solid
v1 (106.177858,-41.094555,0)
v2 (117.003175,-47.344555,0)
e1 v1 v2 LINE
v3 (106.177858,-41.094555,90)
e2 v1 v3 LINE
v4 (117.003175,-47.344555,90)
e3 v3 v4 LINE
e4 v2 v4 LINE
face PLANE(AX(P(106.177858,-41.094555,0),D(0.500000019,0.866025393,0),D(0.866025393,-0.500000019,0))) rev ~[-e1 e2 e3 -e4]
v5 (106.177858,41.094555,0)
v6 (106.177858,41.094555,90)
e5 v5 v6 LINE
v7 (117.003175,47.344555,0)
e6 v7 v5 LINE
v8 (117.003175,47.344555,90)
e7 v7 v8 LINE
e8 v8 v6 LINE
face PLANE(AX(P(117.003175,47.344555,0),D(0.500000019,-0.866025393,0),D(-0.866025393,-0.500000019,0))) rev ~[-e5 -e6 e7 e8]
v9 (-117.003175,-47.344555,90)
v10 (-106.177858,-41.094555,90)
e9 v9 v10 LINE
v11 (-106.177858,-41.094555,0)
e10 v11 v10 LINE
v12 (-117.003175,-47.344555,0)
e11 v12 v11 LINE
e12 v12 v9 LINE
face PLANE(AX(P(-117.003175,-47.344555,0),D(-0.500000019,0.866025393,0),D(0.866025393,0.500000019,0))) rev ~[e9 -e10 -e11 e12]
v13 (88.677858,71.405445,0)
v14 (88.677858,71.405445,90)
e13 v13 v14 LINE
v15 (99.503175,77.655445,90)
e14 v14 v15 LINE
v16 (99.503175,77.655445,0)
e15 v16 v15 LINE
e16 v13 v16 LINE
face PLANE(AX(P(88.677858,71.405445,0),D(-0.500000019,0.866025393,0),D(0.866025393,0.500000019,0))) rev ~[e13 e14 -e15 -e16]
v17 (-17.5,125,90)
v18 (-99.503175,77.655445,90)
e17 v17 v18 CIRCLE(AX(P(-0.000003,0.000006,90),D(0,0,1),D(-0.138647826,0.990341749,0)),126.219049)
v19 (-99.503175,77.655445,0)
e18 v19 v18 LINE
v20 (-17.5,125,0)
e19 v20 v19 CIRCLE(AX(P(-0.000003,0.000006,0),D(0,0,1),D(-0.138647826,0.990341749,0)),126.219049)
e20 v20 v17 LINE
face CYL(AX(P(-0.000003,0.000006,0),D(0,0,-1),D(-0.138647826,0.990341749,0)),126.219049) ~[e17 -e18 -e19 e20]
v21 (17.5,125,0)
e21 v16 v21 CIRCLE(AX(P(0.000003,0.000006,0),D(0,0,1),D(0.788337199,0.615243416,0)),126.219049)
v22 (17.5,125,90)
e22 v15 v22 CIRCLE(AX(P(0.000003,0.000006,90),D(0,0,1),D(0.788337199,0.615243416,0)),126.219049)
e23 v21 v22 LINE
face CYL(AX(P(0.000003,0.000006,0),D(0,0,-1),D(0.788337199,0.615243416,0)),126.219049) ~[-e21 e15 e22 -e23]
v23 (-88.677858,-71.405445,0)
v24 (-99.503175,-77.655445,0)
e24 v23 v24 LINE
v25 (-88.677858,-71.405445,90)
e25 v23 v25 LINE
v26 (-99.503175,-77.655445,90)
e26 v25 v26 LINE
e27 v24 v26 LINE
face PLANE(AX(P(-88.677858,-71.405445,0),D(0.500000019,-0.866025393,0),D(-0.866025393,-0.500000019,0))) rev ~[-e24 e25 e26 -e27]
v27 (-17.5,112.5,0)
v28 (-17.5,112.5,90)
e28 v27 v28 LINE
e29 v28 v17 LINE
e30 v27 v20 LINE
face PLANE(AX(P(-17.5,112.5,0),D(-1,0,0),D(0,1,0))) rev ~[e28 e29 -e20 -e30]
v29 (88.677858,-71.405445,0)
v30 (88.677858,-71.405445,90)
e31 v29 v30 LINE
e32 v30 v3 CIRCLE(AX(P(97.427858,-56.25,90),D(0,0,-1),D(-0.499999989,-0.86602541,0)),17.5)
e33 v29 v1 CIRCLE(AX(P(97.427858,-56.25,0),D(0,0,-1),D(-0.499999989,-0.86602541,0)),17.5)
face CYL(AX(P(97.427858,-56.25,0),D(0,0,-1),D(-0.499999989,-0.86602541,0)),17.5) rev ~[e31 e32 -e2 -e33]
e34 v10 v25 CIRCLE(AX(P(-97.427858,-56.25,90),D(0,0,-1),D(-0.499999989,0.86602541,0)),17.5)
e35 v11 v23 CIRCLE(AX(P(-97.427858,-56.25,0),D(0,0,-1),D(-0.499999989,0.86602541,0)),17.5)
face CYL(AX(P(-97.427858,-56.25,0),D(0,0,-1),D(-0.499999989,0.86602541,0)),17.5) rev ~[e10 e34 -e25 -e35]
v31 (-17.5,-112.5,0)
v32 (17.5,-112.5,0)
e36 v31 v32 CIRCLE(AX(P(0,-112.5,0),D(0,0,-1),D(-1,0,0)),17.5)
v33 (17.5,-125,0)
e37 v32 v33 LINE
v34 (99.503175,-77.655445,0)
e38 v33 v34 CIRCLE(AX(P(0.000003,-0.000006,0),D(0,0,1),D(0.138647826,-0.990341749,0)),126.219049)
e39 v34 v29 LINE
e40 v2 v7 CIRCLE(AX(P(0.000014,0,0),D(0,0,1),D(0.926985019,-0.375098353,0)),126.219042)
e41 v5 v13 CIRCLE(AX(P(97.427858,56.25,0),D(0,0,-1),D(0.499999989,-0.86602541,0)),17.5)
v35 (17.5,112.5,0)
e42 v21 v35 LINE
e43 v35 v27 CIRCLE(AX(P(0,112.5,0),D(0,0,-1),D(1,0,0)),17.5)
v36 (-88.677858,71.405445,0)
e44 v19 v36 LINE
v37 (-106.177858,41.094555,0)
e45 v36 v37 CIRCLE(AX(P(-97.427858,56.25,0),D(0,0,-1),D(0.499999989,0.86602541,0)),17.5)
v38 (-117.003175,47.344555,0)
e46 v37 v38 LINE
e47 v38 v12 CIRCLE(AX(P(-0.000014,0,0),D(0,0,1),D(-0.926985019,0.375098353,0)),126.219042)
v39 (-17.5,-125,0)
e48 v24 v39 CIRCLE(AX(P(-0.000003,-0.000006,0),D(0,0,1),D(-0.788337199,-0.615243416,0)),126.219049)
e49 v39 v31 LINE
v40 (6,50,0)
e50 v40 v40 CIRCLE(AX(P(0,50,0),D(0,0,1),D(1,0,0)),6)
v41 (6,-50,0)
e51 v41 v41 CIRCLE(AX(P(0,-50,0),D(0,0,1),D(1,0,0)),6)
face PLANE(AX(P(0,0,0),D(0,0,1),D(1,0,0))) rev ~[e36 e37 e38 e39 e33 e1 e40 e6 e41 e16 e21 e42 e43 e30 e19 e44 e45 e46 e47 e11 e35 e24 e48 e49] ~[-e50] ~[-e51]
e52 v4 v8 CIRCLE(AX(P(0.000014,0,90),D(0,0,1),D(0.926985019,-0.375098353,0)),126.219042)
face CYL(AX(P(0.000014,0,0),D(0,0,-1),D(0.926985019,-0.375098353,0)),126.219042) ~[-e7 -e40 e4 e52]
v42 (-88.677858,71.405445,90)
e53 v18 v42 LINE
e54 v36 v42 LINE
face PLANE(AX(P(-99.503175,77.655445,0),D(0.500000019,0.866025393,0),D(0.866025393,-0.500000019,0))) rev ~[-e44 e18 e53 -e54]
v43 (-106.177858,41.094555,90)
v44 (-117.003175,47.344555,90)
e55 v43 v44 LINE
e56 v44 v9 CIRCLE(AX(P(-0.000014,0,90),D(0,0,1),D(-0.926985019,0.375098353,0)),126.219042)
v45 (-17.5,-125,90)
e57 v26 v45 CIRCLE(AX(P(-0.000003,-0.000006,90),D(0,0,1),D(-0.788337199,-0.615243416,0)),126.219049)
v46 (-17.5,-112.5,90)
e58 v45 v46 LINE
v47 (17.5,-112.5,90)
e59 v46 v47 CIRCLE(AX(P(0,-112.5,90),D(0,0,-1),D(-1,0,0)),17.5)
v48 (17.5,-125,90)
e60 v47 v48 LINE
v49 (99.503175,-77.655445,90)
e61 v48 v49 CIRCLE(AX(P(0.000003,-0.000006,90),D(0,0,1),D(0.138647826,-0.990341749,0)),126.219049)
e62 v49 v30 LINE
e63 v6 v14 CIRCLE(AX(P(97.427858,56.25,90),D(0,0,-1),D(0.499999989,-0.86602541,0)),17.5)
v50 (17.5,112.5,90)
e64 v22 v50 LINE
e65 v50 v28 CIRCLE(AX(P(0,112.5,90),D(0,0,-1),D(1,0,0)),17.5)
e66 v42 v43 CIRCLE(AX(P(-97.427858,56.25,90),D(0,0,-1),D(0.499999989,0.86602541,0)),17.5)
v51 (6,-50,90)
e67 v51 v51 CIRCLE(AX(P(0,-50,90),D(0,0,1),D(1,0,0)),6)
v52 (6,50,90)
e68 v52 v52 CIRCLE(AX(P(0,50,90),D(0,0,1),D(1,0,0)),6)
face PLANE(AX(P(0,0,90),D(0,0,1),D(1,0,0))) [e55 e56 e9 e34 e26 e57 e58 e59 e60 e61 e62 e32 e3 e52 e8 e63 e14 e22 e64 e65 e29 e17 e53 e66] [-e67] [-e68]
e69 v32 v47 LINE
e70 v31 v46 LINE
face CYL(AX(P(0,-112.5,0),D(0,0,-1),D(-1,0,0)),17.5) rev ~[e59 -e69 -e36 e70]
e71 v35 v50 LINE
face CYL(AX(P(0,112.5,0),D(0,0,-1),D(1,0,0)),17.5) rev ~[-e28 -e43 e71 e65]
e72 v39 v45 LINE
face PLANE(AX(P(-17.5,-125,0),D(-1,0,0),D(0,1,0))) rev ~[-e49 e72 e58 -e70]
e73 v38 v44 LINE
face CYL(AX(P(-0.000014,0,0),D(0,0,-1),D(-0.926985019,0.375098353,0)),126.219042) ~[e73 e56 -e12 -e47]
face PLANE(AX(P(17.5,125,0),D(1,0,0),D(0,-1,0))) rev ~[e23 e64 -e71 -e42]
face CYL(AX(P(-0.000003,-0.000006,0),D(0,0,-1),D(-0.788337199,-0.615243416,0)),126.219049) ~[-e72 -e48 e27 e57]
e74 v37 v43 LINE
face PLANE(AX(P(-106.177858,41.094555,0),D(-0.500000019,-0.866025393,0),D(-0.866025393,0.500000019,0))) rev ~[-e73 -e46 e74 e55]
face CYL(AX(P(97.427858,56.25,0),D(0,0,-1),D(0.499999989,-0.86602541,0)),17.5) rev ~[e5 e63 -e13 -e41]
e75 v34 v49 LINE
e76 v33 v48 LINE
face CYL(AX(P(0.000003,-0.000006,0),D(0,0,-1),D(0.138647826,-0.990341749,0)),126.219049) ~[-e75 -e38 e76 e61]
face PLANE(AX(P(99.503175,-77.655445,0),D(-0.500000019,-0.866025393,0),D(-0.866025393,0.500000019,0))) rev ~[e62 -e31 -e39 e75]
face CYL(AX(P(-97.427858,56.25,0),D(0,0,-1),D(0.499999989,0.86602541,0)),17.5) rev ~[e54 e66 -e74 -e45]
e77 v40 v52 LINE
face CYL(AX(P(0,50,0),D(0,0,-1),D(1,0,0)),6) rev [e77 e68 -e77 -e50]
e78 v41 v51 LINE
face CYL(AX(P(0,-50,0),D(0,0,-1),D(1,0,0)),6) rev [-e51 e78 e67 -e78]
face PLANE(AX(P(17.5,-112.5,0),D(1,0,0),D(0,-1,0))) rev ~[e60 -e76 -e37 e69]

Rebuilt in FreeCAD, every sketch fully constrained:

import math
import FreeCAD as App
import Part
import Sketcher
Q = App.Units.Quantity

doc = App.newDocument("Part")
body = doc.addObject("PartDesign::Body", "Body")

# Sketch on XY plane
sketch1 = body.newObject("Sketcher::SketchObject", "Sketch")
sketch1.AttachmentSupport = (doc.getObject("XY_Plane"), [""])
sketch1.MapMode = "FlatFace"
sketch1.addGeometry([
    Part.LineSegment(App.Vector(17.5, 125, 0), App.Vector(17.5, 112.5, 0)),  # 0
    Part.ArcOfCircle(Part.Circle(App.Vector(0, 112.5, 0), App.Vector(0, 0, 1), 17.5), math.radians(180), math.radians(360)),  # 1
    Part.LineSegment(App.Vector(-17.5, 112.5, 0), App.Vector(-17.5, 125, 0)),  # 2
    Part.ArcOfCircle(Part.Circle(App.Vector(-0.000003, 0.000006, 0), App.Vector(0, 0, 1), 126.219049), math.radians(97.969609), math.radians(142.030391)),  # 3
    Part.LineSegment(App.Vector(-99.503175, 77.655445, 0), App.Vector(-88.677858, 71.405445, 0)),  # 4
    Part.ArcOfCircle(Part.Circle(App.Vector(-97.427858, 56.25, 0), App.Vector(0, 0, 1), 17.5), math.radians(-119.999999), math.radians(60.000001)),  # 5
    Part.LineSegment(App.Vector(-106.177858, 41.094555, 0), App.Vector(-117.003175, 47.344555, 0)),  # 6
    Part.ArcOfCircle(Part.Circle(App.Vector(-0.000014, 0, 0), App.Vector(0, 0, 1), 126.219042), math.radians(157.969608), math.radians(202.030392)),  # 7
    Part.LineSegment(App.Vector(-117.003175, -47.344555, 0), App.Vector(-106.177858, -41.094555, 0)),  # 8
    Part.ArcOfCircle(Part.Circle(App.Vector(-97.427858, -56.25, 0), App.Vector(0, 0, 1), 17.5), math.radians(-60.000001), math.radians(119.999999)),  # 9
    Part.LineSegment(App.Vector(-88.677858, -71.405445, 0), App.Vector(-99.503175, -77.655445, 0)),  # 10
    Part.ArcOfCircle(Part.Circle(App.Vector(-0.000003, -0.000006, 0), App.Vector(0, 0, 1), 126.219049), math.radians(-142.030391), math.radians(-97.969609)),  # 11
    Part.LineSegment(App.Vector(-17.5, -125, 0), App.Vector(-17.5, -112.5, 0)),  # 12
    Part.ArcOfCircle(Part.Circle(App.Vector(0, -112.5, 0), App.Vector(0, 0, 1), 17.5), math.radians(0), math.radians(180)),  # 13
    Part.LineSegment(App.Vector(17.5, -112.5, 0), App.Vector(17.5, -125, 0)),  # 14
    Part.ArcOfCircle(Part.Circle(App.Vector(0.000003, -0.000006, 0), App.Vector(0, 0, 1), 126.219049), math.radians(-82.030391), math.radians(-37.969609)),  # 15
    Part.LineSegment(App.Vector(99.503175, -77.655445, 0), App.Vector(88.677858, -71.405445, 0)),  # 16
    Part.ArcOfCircle(Part.Circle(App.Vector(97.427858, -56.25, 0), App.Vector(0, 0, 1), 17.5), math.radians(60.000001), math.radians(240.000001)),  # 17
    Part.LineSegment(App.Vector(106.177858, -41.094555, 0), App.Vector(117.003175, -47.344555, 0)),  # 18
    Part.ArcOfCircle(Part.Circle(App.Vector(0.000014, 0, 0), App.Vector(0, 0, 1), 126.219042), math.radians(-22.030392), math.radians(22.030392)),  # 19
    Part.LineSegment(App.Vector(117.003175, 47.344555, 0), App.Vector(106.177858, 41.094555, 0)),  # 20
    Part.ArcOfCircle(Part.Circle(App.Vector(97.427858, 56.25, 0), App.Vector(0, 0, 1), 17.5), math.radians(119.999999), math.radians(299.999999)),  # 21
    Part.LineSegment(App.Vector(88.677858, 71.405445, 0), App.Vector(99.503175, 77.655445, 0)),  # 22
    Part.ArcOfCircle(Part.Circle(App.Vector(0.000003, 0.000006, 0), App.Vector(0, 0, 1), 126.219049), math.radians(37.969609), math.radians(82.030391)),  # 23
    Part.Circle(App.Vector(0, -50, 0), App.Vector(0, 0, 1), 6),  # 24
    Part.Circle(App.Vector(0, 50, 0), App.Vector(0, 0, 1), 6),  # 25
], False)
sketch1.addConstraint([
    Sketcher.Constraint("Tangent", 0, 2, 1, 2),
    Sketcher.Constraint("Tangent", 1, 1, 2, 1),
    Sketcher.Constraint("Coincident", 2, 2, 3, 1),
    Sketcher.Constraint("Coincident", 3, 2, 4, 1),
    Sketcher.Constraint("Tangent", 4, 2, 5, 2),
    Sketcher.Constraint("Tangent", 5, 1, 6, 1),
    Sketcher.Constraint("Coincident", 6, 2, 7, 1),
    Sketcher.Constraint("Coincident", 7, 2, 8, 1),
    Sketcher.Constraint("Tangent", 8, 2, 9, 2),
    Sketcher.Constraint("Tangent", 9, 1, 10, 1),
    Sketcher.Constraint("Coincident", 10, 2, 11, 1),
    Sketcher.Constraint("Coincident", 11, 2, 12, 1),
    Sketcher.Constraint("Tangent", 12, 2, 13, 2),
    Sketcher.Constraint("Tangent", 13, 1, 14, 1),
    Sketcher.Constraint("Coincident", 14, 2, 15, 1),
    Sketcher.Constraint("Coincident", 15, 2, 16, 1),
    Sketcher.Constraint("Tangent", 16, 2, 17, 2),
    Sketcher.Constraint("Tangent", 17, 1, 18, 1),
    Sketcher.Constraint("Coincident", 18, 2, 19, 1),
    Sketcher.Constraint("Coincident", 19, 2, 20, 1),
    Sketcher.Constraint("Tangent", 20, 2, 21, 2),
    Sketcher.Constraint("Tangent", 21, 1, 22, 1),
    Sketcher.Constraint("Coincident", 22, 2, 23, 1),
    Sketcher.Constraint("Coincident", 23, 2, 0, 1),
    Sketcher.Constraint("Vertical", 0),
    Sketcher.Constraint("Vertical", 2),
    Sketcher.Constraint("Vertical", 12),
    Sketcher.Constraint("Vertical", 14),
    Sketcher.Constraint("Coincident", 3, 3, -1, 1),
    Sketcher.Constraint("Coincident", 11, 3, -1, 1),
    Sketcher.Constraint("Coincident", 15, 3, -1, 1),
    Sketcher.Constraint("Coincident", 23, 3, -1, 1),
    Sketcher.Constraint("Equal", 1, 5),
    Sketcher.Constraint("Equal", 5, 9),
    Sketcher.Constraint("Equal", 3, 11),
    Sketcher.Constraint("Equal", 9, 13),
    Sketcher.Constraint("Equal", 11, 15),
    Sketcher.Constraint("Equal", 13, 17),
    Sketcher.Constraint("Equal", 7, 19),
    Sketcher.Constraint("Equal", 17, 21),
    Sketcher.Constraint("Equal", 15, 23),
    Sketcher.Constraint("Equal", 24, 25),
    Sketcher.Constraint("Symmetric", 1, 3, 13, 3, -1, 1),
    Sketcher.Constraint("Symmetric", 5, 3, 17, 3, -1, 1),
    Sketcher.Constraint("Symmetric", 7, 3, 19, 3, -1, 1),
    Sketcher.Constraint("Symmetric", 9, 3, 21, 3, -1, 1),
    Sketcher.Constraint("Symmetric", 24, 3, 25, 3, -1, 1),
    Sketcher.Constraint("Symmetric", 9, 3, 17, 3, -2),
    Sketcher.Constraint("Symmetric", 7, 2, 18, 2, -2),
    Sketcher.Constraint("PointOnObject", 1, 3, -2),
    Sketcher.Constraint("PointOnObject", 24, 3, -2),
    Sketcher.Constraint("Parallel", 4, 6),
    Sketcher.Constraint("Parallel", 8, 10),
    Sketcher.Constraint("Parallel", 6, 16),
    Sketcher.Constraint("Parallel", 16, 18),
    Sketcher.Constraint("Parallel", 10, 20),
    Sketcher.Constraint("Parallel", 20, 22),
    Sketcher.Constraint("Equal", 4, 6),
    Sketcher.Constraint("Diameter", 24, 12.0),
    Sketcher.Constraint("Radius", 1, 17.5),
    Sketcher.Constraint("Angle", 4, Q("-30.000001 deg")),
    Sketcher.Constraint("DistanceY", 0, 2, 0, 1, 12.5),
    Sketcher.Constraint("DistanceY", 24, 3, -1, 1, 50.0),
    Sketcher.Constraint("DistanceY", -1, 1, 2, 2, 125.0),
    Sketcher.Constraint("Distance", 4, 12.5),
    Sketcher.Constraint("DistanceY", 9, 3, 5, 3, 112.5),
    Sketcher.Constraint("Radius", 7, 126.219042),
])
pad1 = body.newObject("PartDesign::Pad", "Pad")
pad1.Profile = sketch1
pad1.Length = 90

doc.recompute()
